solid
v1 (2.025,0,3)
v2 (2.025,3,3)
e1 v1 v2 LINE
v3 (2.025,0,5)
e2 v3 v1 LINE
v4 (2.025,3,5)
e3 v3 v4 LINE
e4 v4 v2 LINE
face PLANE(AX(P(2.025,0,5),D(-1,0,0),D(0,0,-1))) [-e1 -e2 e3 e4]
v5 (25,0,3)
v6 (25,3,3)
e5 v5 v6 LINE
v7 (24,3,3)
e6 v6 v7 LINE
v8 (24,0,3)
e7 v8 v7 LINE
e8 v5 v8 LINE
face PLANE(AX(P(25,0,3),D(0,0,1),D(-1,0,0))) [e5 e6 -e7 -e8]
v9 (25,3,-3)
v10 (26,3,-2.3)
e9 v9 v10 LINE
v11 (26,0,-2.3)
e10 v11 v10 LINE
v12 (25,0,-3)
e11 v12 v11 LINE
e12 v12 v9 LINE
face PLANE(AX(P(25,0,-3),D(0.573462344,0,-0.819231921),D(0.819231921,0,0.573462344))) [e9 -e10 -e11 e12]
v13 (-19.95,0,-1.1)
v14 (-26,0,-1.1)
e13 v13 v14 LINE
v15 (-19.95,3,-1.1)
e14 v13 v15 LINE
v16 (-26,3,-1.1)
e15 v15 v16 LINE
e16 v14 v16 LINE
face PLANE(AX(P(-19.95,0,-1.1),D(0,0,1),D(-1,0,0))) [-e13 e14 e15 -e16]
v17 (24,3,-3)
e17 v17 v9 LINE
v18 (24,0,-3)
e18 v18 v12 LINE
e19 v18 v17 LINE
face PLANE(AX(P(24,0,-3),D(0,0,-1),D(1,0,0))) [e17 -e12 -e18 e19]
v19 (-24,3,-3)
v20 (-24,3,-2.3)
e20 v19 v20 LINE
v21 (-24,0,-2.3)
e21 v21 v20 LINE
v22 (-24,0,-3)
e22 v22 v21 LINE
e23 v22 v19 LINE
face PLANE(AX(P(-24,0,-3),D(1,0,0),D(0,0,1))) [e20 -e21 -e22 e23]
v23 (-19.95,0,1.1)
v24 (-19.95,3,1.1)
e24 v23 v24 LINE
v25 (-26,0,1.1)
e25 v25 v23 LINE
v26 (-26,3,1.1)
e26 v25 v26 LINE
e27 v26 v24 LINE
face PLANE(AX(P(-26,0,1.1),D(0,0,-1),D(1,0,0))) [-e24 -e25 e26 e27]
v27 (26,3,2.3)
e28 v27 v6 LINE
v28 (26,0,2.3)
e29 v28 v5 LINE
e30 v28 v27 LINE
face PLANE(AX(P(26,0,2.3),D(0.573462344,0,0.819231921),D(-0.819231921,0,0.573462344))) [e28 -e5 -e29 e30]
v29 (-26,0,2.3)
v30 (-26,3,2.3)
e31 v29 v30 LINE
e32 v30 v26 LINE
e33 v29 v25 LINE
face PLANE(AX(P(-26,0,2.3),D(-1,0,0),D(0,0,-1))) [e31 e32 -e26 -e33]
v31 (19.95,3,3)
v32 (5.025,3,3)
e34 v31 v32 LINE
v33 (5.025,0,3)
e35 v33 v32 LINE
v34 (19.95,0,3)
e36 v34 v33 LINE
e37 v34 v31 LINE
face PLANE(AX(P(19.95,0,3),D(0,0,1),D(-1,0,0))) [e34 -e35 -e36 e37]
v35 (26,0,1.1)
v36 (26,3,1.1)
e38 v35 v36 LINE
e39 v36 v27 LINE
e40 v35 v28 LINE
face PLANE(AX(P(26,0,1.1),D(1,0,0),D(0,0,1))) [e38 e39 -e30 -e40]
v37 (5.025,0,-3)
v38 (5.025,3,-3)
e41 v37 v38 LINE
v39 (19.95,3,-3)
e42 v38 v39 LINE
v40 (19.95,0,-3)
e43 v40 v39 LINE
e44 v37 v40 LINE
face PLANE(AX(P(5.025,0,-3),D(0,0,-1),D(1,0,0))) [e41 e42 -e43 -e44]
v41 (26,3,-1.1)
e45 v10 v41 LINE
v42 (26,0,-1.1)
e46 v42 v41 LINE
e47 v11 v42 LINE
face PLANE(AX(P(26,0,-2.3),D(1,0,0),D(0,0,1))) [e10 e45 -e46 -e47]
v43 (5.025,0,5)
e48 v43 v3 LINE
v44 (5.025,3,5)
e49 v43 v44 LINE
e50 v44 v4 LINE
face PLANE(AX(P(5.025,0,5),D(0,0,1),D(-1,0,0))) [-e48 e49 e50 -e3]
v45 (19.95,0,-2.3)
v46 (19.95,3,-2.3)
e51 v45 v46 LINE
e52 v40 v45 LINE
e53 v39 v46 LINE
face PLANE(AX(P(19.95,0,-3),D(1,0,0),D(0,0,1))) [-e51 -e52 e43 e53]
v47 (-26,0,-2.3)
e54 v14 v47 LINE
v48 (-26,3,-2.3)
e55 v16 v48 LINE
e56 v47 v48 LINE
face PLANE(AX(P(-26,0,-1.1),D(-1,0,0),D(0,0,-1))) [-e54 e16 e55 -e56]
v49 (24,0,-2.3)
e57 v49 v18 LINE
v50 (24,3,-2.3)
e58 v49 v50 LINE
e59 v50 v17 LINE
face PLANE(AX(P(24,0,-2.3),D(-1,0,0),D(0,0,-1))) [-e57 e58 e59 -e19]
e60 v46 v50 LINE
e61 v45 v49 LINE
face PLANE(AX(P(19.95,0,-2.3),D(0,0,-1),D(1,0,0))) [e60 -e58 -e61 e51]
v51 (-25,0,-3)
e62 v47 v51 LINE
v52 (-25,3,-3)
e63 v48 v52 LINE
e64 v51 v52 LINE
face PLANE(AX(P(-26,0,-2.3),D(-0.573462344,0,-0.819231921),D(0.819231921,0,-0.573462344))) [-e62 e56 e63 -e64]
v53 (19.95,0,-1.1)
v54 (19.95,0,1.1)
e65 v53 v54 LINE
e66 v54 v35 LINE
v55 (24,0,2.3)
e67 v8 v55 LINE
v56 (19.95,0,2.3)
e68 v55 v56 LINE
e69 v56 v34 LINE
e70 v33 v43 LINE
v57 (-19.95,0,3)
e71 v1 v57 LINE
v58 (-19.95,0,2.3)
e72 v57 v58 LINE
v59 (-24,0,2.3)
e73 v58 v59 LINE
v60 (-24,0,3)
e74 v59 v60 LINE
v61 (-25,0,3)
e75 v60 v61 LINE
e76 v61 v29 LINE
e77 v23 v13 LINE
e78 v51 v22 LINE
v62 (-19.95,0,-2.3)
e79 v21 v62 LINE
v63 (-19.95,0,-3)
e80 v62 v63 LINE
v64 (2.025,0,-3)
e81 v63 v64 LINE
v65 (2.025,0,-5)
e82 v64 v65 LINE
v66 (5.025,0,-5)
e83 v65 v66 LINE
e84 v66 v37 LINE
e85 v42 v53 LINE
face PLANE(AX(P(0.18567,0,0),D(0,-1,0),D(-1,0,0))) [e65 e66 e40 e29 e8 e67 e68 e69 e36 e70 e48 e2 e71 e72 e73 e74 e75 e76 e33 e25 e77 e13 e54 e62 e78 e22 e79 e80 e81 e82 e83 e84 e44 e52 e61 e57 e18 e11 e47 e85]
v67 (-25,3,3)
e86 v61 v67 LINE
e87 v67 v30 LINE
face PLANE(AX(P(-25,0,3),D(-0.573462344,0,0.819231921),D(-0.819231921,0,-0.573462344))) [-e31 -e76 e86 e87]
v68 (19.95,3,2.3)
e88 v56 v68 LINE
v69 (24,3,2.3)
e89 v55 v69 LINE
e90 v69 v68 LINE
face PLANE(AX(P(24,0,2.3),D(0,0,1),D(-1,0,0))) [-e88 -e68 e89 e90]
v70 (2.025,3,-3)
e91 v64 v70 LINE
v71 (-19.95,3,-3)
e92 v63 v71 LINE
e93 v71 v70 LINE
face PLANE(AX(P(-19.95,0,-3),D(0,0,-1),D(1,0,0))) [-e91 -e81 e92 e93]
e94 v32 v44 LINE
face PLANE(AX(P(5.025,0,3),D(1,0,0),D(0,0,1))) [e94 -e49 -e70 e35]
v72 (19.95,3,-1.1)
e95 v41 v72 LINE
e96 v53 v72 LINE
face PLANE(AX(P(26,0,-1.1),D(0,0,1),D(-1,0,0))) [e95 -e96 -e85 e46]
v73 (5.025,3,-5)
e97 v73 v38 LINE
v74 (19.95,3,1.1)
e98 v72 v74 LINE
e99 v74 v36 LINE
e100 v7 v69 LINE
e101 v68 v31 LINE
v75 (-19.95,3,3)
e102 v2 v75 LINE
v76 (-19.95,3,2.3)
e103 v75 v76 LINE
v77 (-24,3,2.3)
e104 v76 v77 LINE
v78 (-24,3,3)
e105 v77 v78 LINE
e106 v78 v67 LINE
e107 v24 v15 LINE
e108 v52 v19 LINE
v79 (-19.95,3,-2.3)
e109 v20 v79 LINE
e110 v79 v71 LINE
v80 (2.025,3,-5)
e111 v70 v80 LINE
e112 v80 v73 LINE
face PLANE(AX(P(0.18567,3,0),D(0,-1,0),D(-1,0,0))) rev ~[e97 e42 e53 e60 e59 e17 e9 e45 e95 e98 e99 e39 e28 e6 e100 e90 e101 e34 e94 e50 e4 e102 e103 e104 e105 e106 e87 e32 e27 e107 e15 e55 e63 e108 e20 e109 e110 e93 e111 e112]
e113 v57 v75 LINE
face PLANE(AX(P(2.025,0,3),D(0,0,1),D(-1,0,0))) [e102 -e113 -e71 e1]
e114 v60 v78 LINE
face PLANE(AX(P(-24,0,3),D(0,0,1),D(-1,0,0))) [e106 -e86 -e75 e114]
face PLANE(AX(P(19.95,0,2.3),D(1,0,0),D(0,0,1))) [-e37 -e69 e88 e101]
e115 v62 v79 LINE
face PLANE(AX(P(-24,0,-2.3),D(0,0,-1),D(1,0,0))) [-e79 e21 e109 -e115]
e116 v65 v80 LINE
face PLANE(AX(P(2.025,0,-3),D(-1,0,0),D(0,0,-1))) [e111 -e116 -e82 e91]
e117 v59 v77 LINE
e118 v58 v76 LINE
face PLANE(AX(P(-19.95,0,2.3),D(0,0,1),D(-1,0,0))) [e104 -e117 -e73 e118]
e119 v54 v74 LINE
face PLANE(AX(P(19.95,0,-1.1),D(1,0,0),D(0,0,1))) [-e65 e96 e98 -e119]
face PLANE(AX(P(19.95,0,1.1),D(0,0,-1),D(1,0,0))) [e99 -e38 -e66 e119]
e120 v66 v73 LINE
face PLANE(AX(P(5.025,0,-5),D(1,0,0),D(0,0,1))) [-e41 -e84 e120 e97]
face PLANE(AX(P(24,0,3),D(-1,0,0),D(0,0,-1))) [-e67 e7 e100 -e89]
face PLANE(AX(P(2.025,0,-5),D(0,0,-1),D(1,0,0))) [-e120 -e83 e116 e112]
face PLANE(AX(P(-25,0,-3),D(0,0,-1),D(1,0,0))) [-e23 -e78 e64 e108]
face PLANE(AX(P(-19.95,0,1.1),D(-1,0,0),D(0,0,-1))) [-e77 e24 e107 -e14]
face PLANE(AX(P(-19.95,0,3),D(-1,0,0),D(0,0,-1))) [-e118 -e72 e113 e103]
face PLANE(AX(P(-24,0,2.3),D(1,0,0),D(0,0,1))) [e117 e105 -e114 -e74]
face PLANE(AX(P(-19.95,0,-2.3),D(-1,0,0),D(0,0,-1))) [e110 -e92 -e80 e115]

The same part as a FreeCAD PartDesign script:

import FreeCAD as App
import Part
import Sketcher
Q = App.Units.Quantity

doc = App.newDocument("Part")
params = doc.addObject("Spreadsheet::Sheet", "Params")
for row, (alias, value) in enumerate([
    ("sketch1_width", "1 mm"),
    ("sketch1_width2", "3 mm"),
    ("sketch1_height", "2 mm"),
    ("sketch1_height2", "0.7 mm"),
    ("sketch1_height3", "1.2 mm"),
    ("pad1_length", "3 mm"),
], start=1):
    params.set(f"A{row}", alias)
    params.set(f"B{row}", "=" + value)
    params.setAlias(f"B{row}", alias)

body = doc.addObject("PartDesign::Body", "Body")

# Sketch on XZ plane
sketch1 = doc.addObject("Sketcher::SketchObject", "Sketch")
body.addObject(sketch1)
sketch1.AttachmentSupport = (doc.XZ_Plane, [""])
sketch1.MapMode = "FlatFace"
sketch1.addGeometry([
    Part.LineSegment(App.Vector(2, -3, 0), App.Vector(-19.9, -3, 0)),  # 0
    Part.LineSegment(App.Vector(-19.9, -3, 0), App.Vector(-19.9, -2.3, 0)),  # 1
    Part.LineSegment(App.Vector(-19.9, -2.3, 0), App.Vector(-24, -2.3, 0)),  # 2
    Part.LineSegment(App.Vector(-24, -2.3, 0), App.Vector(-24, -3, 0)),  # 3
    Part.LineSegment(App.Vector(-24, -3, 0), App.Vector(-25, -3, 0)),  # 4
    Part.LineSegment(App.Vector(-25, -3, 0), App.Vector(-26, -2.3, 0)),  # 5
    Part.LineSegment(App.Vector(-26, -2.3, 0), App.Vector(-26, -1.1, 0)),  # 6
    Part.LineSegment(App.Vector(-26, -1.1, 0), App.Vector(-19.9, -1.1, 0)),  # 7
    Part.LineSegment(App.Vector(-19.9, -1.1, 0), App.Vector(-19.9, 1.1, 0)),  # 8
    Part.LineSegment(App.Vector(-19.9, 1.1, 0), App.Vector(-26, 1.1, 0)),  # 9
    Part.LineSegment(App.Vector(-26, 1.1, 0), App.Vector(-26, 2.3, 0)),  # 10
    Part.LineSegment(App.Vector(-26, 2.3, 0), App.Vector(-25, 3, 0)),  # 11
    Part.LineSegment(App.Vector(-25, 3, 0), App.Vector(-24, 3, 0)),  # 12
    Part.LineSegment(App.Vector(-24, 3, 0), App.Vector(-24, 2.3, 0)),  # 13
    Part.LineSegment(App.Vector(-24, 2.3, 0), App.Vector(-19.9, 2.3, 0)),  # 14
    Part.LineSegment(App.Vector(-19.9, 2.3, 0), App.Vector(-19.9, 3, 0)),  # 15
    Part.LineSegment(App.Vector(-19.9, 3, 0), App.Vector(2, 3, 0)),  # 16
    Part.LineSegment(App.Vector(2, 3, 0), App.Vector(2, 5, 0)),  # 17
    Part.LineSegment(App.Vector(2, 5, 0), App.Vector(5, 5, 0)),  # 18
    Part.LineSegment(App.Vector(5, 5, 0), App.Vector(5, 3, 0)),  # 19
    Part.LineSegment(App.Vector(5, 3, 0), App.Vector(19.9, 3, 0)),  # 20
    Part.LineSegment(App.Vector(19.9, 3, 0), App.Vector(19.9, 2.3, 0)),  # 21
    Part.LineSegment(App.Vector(19.9, 2.3, 0), App.Vector(24, 2.3, 0)),  # 22
    Part.LineSegment(App.Vector(24, 2.3, 0), App.Vector(24, 3, 0)),  # 23
    Part.LineSegment(App.Vector(24, 3, 0), App.Vector(25, 3, 0)),  # 24
    Part.LineSegment(App.Vector(25, 3, 0), App.Vector(26, 2.3, 0)),  # 25
    Part.LineSegment(App.Vector(26, 2.3, 0), App.Vector(26, 1.1, 0)),  # 26
    Part.LineSegment(App.Vector(26, 1.1, 0), App.Vector(19.9, 1.1, 0)),  # 27
    Part.LineSegment(App.Vector(19.9, 1.1, 0), App.Vector(19.9, -1.1, 0)),  # 28
    Part.LineSegment(App.Vector(19.9, -1.1, 0), App.Vector(26, -1.1, 0)),  # 29
    Part.LineSegment(App.Vector(26, -1.1, 0), App.Vector(26, -2.3, 0)),  # 30
    Part.LineSegment(App.Vector(26, -2.3, 0), App.Vector(25, -3, 0)),  # 31
    Part.LineSegment(App.Vector(25, -3, 0), App.Vector(24, -3, 0)),  # 32
    Part.LineSegment(App.Vector(24, -3, 0), App.Vector(24, -2.3, 0)),  # 33
    Part.LineSegment(App.Vector(24, -2.3, 0), App.Vector(19.9, -2.3, 0)),  # 34
    Part.LineSegment(App.Vector(19.9, -2.3, 0), App.Vector(19.9, -3, 0)),  # 35
    Part.LineSegment(App.Vector(19.9, -3, 0), App.Vector(5, -3, 0)),  # 36
    Part.LineSegment(App.Vector(5, -3, 0), App.Vector(5, -5, 0)),  # 37
    Part.LineSegment(App.Vector(5, -5, 0), App.Vector(2, -5, 0)),  # 38
    Part.LineSegment(App.Vector(2, -5, 0), App.Vector(2, -3, 0)),  # 39
], False)
sketch1.addConstraint([
    Sketcher.Constraint("Coincident", 0, 2, 1, 1),
    Sketcher.Constraint("Coincident", 1, 2, 2, 1),
    Sketcher.Constraint("Coincident", 2, 2, 3, 1),
    Sketcher.Constraint("Coincident", 3, 2, 4, 1),
    Sketcher.Constraint("Coincident", 4, 2, 5, 1),
    Sketcher.Constraint("Coincident", 5, 2, 6, 1),
    Sketcher.Constraint("Coincident", 6, 2, 7, 1),
    Sketcher.Constraint("Coincident", 7, 2, 8, 1),
    Sketcher.Constraint("Coincident", 8, 2, 9, 1),
    Sketcher.Constraint("Coincident", 9, 2, 10, 1),
    Sketcher.Constraint("Coincident", 10, 2, 11, 1),
    Sketcher.Constraint("Coincident", 11, 2, 12, 1),
    Sketcher.Constraint("Coincident", 12, 2, 13, 1),
    Sketcher.Constraint("Coincident", 13, 2, 14, 1),
    Sketcher.Constraint("Coincident", 14, 2, 15, 1),
    Sketcher.Constraint("Coincident", 15, 2, 16, 1),
    Sketcher.Constraint("Coincident", 16, 2, 17, 1),
    Sketcher.Constraint("Coincident", 17, 2, 18, 1),
    Sketcher.Constraint("Coincident", 18, 2, 19, 1),
    Sketcher.Constraint("Coincident", 19, 2, 20, 1),
    Sketcher.Constraint("Coincident", 20, 2, 21, 1),
    Sketcher.Constraint("Coincident", 21, 2, 22, 1),
    Sketcher.Constraint("Coincident", 22, 2, 23, 1),
    Sketcher.Constraint("Coincident", 23, 2, 24, 1),
    Sketcher.Constraint("Coincident", 24, 2, 25, 1),
    Sketcher.Constraint("Coincident", 25, 2, 26, 1),
    Sketcher.Constraint("Coincident", 26, 2, 27, 1),
    Sketcher.Constraint("Coincident", 27, 2, 28, 1),
    Sketcher.Constraint("Coincident", 28, 2, 29, 1),
    Sketcher.Constraint("Coincident", 29, 2, 30, 1),
    Sketcher.Constraint("Coincident", 30, 2, 31, 1),
    Sketcher.Constraint("Coincident", 31, 2, 32, 1),
    Sketcher.Constraint("Coincident", 32, 2, 33, 1),
    Sketcher.Constraint("Coincident", 33, 2, 34, 1),
    Sketcher.Constraint("Coincident", 34, 2, 35, 1),
    Sketcher.Constraint("Coincident", 35, 2, 36, 1),
    Sketcher.Constraint("Coincident", 36, 2, 37, 1),
    Sketcher.Constraint("Coincident", 37, 2, 38, 1),
    Sketcher.Constraint("Coincident", 38, 2, 39, 1),
    Sketcher.Constraint("Coincident", 39, 2, 0, 1),
    Sketcher.Constraint("Horizontal", 0),
    Sketcher.Constraint("Vertical", 1),
    Sketcher.Constraint("Horizontal", 2),
    Sketcher.Constraint("Vertical", 3),
    Sketcher.Constraint("Horizontal", 4),
    Sketcher.Constraint("Vertical", 6),
    Sketcher.Constraint("Horizontal", 7),
    Sketcher.Constraint("Vertical", 8),
    Sketcher.Constraint("Horizontal", 9),
    Sketcher.Constraint("Vertical", 10),
    Sketcher.Constraint("Horizontal", 12),
    Sketcher.Constraint("Vertical", 13),
    Sketcher.Constraint("Horizontal", 14),
    Sketcher.Constraint("Vertical", 15),
    Sketcher.Constraint("Horizontal", 16),
    Sketcher.Constraint("Vertical", 17),
    Sketcher.Constraint("Horizontal", 18),
    Sketcher.Constraint("Vertical", 19),
    Sketcher.Constraint("Horizontal", 20),
    Sketcher.Constraint("Vertical", 21),
    Sketcher.Constraint("Horizontal", 22),
    Sketcher.Constraint("Vertical", 23),
    Sketcher.Constraint("Horizontal", 24),
    Sketcher.Constraint("Vertical", 26),
    Sketcher.Constraint("Horizontal", 27),
    Sketcher.Constraint("Vertical", 28),
    Sketcher.Constraint("Horizontal", 29),
    Sketcher.Constraint("Vertical", 30),
    Sketcher.Constraint("Horizontal", 32),
    Sketcher.Constraint("Vertical", 33),
    Sketcher.Constraint("Horizontal", 34),
    Sketcher.Constraint("Vertical", 35),
    Sketcher.Constraint("Horizontal", 36),
    Sketcher.Constraint("Vertical", 37),
    Sketcher.Constraint("Horizontal", 38),
    Sketcher.Constraint("Vertical", 39),
    Sketcher.Constraint("Symmetric", 0, 2, 20, 2, -1, 1),
    Sketcher.Constraint("Symmetric", 2, 2, 22, 2, -1, 1),
    Sketcher.Constraint("Symmetric", 4, 2, 24, 2, -1, 1),
    Sketcher.Constraint("Symmetric", 5, 2, 25, 2, -1, 1),
    Sketcher.Constraint("Symmetric", 7, 2, 27, 2, -1, 1),
    Sketcher.Constraint("Symmetric", 9, 2, 29, 2, -1, 1),
    Sketcher.Constraint("Symmetric", 11, 2, 31, 2, -1, 1),
    Sketcher.Constraint("Symmetric", 13, 2, 33, 2, -1, 1),
    Sketcher.Constraint("Symmetric", 15, 2, 35, 2, -1, 1),
    Sketcher.Constraint("Symmetric", 15, 2, 20, 2, -2),
    Sketcher.Constraint("Symmetric", 13, 2, 22, 2, -2),
    Sketcher.Constraint("Symmetric", 11, 2, 24, 2, -2),
    Sketcher.Constraint("Symmetric", 10, 2, 25, 2, -2),
    Sketcher.Constraint("Symmetric", 18, 2, 37, 2, -1),
    Sketcher.Constraint("Parallel", 11, 31),
    Sketcher.Constraint("Horizontal", 0, 2, 3, 2),
    Sketcher.Constraint("Horizontal", 2, 2, 5, 2),
    Sketcher.Constraint("Horizontal", 9, 2, 26, 2),
    Sketcher.Constraint("Vertical", 1, 2, 7, 2),
    Sketcher.Constraint("Vertical", 17, 2, 38, 2),
    Sketcher.Constraint("DistanceX", 4, 2, 4, 1, Q("1 mm")),
    Sketcher.Constraint("DistanceX", 18, 1, 18, 2, Q("3 mm")),
    Sketcher.Constraint("DistanceY", 17, 1, 17, 2, Q("2 mm")),
    Sketcher.Constraint("DistanceY", 1, 1, 1, 2, Q("0.7 mm")),
    Sketcher.Constraint("DistanceY", 6, 1, 6, 2, Q("1.2 mm")),
    Sketcher.Constraint("DistanceY", 8, 1, 8, 2, Q("2.2 mm")),
    Sketcher.Constraint("DistanceX", 2, 2, -1, 1, Q("24 mm")),
    Sketcher.Constraint("DistanceX", 5, 2, -1, 1, Q("26 mm")),
    Sketcher.Constraint("DistanceX", 2, 2, 2, 1, Q("4.05 mm")),
    Sketcher.Constraint("DistanceX", 0, 2, 0, 1, Q("21.975 mm")),
])
sketch1.setExpression("Constraints[96]", "Params.sketch1_width")
sketch1.setExpression("Constraints[97]", "Params.sketch1_width2")
sketch1.setExpression("Constraints[98]", "Params.sketch1_height")
sketch1.setExpression("Constraints[99]", "Params.sketch1_height2")
sketch1.setExpression("Constraints[100]", "Params.sketch1_height3")
pad1 = doc.addObject("PartDesign::Pad", "Pad")
body.addObject(pad1)
pad1.Profile = sketch1
pad1.setExpression("Length", "Params.pad1_length")
pad1.Reversed = True

doc.recompute()
